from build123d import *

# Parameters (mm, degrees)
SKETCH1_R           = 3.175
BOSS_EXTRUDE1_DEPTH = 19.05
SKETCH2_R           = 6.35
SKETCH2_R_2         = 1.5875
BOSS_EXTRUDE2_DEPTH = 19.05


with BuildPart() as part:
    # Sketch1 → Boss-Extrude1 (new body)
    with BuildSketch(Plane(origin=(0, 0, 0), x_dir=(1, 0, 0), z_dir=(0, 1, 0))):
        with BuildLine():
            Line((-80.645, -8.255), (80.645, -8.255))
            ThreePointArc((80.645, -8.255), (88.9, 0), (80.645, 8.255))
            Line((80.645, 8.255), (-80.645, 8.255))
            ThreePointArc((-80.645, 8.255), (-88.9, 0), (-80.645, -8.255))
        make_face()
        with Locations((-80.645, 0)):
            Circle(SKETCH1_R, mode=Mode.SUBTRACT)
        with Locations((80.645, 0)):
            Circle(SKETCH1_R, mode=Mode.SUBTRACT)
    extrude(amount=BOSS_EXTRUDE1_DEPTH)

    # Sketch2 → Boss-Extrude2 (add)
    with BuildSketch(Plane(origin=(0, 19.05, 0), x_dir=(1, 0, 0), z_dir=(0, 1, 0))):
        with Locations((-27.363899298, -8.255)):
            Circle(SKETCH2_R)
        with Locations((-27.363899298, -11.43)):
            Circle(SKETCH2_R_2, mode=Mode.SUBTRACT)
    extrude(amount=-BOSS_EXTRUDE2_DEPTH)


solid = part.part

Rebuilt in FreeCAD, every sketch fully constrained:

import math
import FreeCAD as App
import Part
import Sketcher
Q = App.Units.Quantity

doc = App.newDocument("Part")
params = doc.addObject("Spreadsheet::Sheet", "Params")
for row, (alias, value) in enumerate([
    ("sketch1_diameter", "0.25 in"),
    ("sketch1_radius", "0.325 in"),
    ("sketch1_width", "6.35 in"),
    ("pad1_length", "0.75 in"),
    ("sketch2_diameter", "0.5 in"),
    ("sketch2_diameter2", "0.125 in"),
    ("pad2_length", "0.75 in"),
], start=1):
    params.set(f"A{row}", alias)
    params.set(f"B{row}", "=" + value)
    params.setAlias(f"B{row}", alias)

body = doc.addObject("PartDesign::Body", "Body")

# Sketch on XZ plane
sketch1 = doc.addObject("Sketcher::SketchObject", "Sketch")
body.addObject(sketch1)
sketch1.AttachmentSupport = (doc.XZ_Plane, [""])
sketch1.MapMode = "FlatFace"
sketch1.addGeometry([
    Part.LineSegment(App.Vector(-80.6, 8.3, 0), App.Vector(80.6, 8.3, 0)),  # 0
    Part.ArcOfCircle(Part.Circle(App.Vector(80.6, 0, 0), App.Vector(0, 0, 1), 8.3), math.radians(-90), math.radians(90)),  # 1
    Part.LineSegment(App.Vector(80.6, -8.3, 0), App.Vector(-80.6, -8.3, 0)),  # 2
    Part.ArcOfCircle(Part.Circle(App.Vector(-80.6, 0, 0), App.Vector(0, 0, 1), 8.3), math.radians(90), math.radians(270)),  # 3
    Part.Circle(App.Vector(-80.6, 0, 0), App.Vector(0, 0, 1), 3.2),  # 4
    Part.Circle(App.Vector(80.6, 0, 0), App.Vector(0, 0, 1), 3.2),  # 5
], False)
sketch1.addConstraint([
    Sketcher.Constraint("Tangent", 0, 2, 1, 2),
    Sketcher.Constraint("Tangent", 1, 1, 2, 1),
    Sketcher.Constraint("Tangent", 2, 2, 3, 2),
    Sketcher.Constraint("Tangent", 3, 1, 0, 1),
    Sketcher.Constraint("Horizontal", 0),
    Sketcher.Constraint("Horizontal", 2),
    Sketcher.Constraint("Coincident", 4, 3, 3, 3),
    Sketcher.Constraint("Coincident", 5, 3, 1, 3),
    Sketcher.Constraint("Equal", 4, 5),
    Sketcher.Constraint("Symmetric", 1, 3, 3, 3, -1, 1),
    Sketcher.Constraint("Diameter", 4, Q("0.25 in")),
    Sketcher.Constraint("Radius", 1, Q("0.325 in")),
    Sketcher.Constraint("DistanceX", 0, 1, 0, 2, Q("6.35 in")),
])
sketch1.setExpression("Constraints[10]", "Params.sketch1_diameter")
sketch1.setExpression("Constraints[11]", "Params.sketch1_radius")
sketch1.setExpression("Constraints[12]", "Params.sketch1_width")
pad1 = doc.addObject("PartDesign::Pad", "Pad")
body.addObject(pad1)
pad1.Profile = sketch1
pad1.setExpression("Length", "Params.pad1_length")
pad1.Reversed = True

# Sketch on XZ plane
sketch2 = doc.addObject("Sketcher::SketchObject", "Sketch001")
body.addObject(sketch2)
sketch2.AttachmentSupport = (doc.XZ_Plane, [""])
sketch2.MapMode = "FlatFace"
sketch2.AttachmentOffset = App.Placement(App.Vector(0, 0, -0.75 * 25.4), App.Rotation())
sketch2.addGeometry([
    Part.Circle(App.Vector(-27.4, 8.3, 0), App.Vector(0, 0, 1), 6.3),
    Part.Circle(App.Vector(-27.4, 11.4, 0), App.Vector(0, 0, 1), 1.6),
], False)
sketch2.addConstraint([
    Sketcher.Constraint("Vertical", 0, 3, 1, 3),
    Sketcher.Constraint("Diameter", 0, Q("0.5 in")),
    Sketcher.Constraint("Diameter", 1, Q("0.125 in")),
    Sketcher.Constraint("DistanceY", -1, 1, 1, 3, Q("0.45 in")),
    Sketcher.Constraint("DistanceY", -1, 1, 0, 3, Q("0.325 in")),
    Sketcher.Constraint("DistanceX", 0, 3, -1, 1, 27.363899),
])
sketch2.setExpression("Constraints[1]", "Params.sketch2_diameter")
sketch2.setExpression("Constraints[2]", "Params.sketch2_diameter2")
pad2 = doc.addObject("PartDesign::Pad", "Pad001")
body.addObject(pad2)
pad2.Profile = sketch2
pad2.setExpression("Length", "Params.pad2_length")

doc.recompute()
